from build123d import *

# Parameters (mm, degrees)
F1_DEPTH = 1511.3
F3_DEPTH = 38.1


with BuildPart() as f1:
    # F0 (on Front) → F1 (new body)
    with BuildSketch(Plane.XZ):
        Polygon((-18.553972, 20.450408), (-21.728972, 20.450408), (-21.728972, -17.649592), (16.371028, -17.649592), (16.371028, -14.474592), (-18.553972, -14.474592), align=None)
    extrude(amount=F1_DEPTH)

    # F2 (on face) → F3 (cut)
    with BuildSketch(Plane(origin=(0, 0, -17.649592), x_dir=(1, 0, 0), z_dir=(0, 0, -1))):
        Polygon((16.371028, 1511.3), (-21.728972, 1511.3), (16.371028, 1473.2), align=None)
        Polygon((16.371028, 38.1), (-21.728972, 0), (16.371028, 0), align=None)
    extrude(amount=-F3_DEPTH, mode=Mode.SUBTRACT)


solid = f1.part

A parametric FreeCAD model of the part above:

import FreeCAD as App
import Part
import Sketcher

V = App.Vector
Q = App.Units.Quantity


def add_polygon(sketch, points):
    """Adds a closed chain of lines whose ends are joined by coincident constraints."""
    first, n = sketch.GeometryCount, len(points)
    for a, b in zip(points, points[1:] + points[:1]):
        sketch.addGeometry(Part.LineSegment(App.Vector(*a, 0), App.Vector(*b, 0)), False)
    for i in range(n):
        sketch.addConstraint(Sketcher.Constraint("Coincident", first + i, 2, first + (i + 1) % n, 1))

doc = App.newDocument("Part")
body = doc.addObject("PartDesign::Body", "Body")

sketch1 = body.newObject("Sketcher::SketchObject", "Sketch")
sketch1.AttachmentSupport = (doc.getObject("XZ_Plane"), [""])
sketch1.MapMode = "FlatFace"
add_polygon(sketch1, [(-18.6, 20.5), (-21.7, 20.5), (-21.7, -17.6), (16.4, -17.6), (16.4, -14.5), (-18.6, -14.5)])
sketch1.addConstraint(Sketcher.Constraint("Horizontal", 0))
sketch1.addConstraint(Sketcher.Constraint("Vertical", 1))
sketch1.addConstraint(Sketcher.Constraint("Horizontal", 2))
sketch1.addConstraint(Sketcher.Constraint("Vertical", 3))
sketch1.addConstraint(Sketcher.Constraint("Horizontal", 4))
sketch1.addConstraint(Sketcher.Constraint("Vertical", 5))
sketch1.addConstraint(Sketcher.Constraint("Equal", 2, 1))
sketch1.addConstraint(Sketcher.Constraint("Equal", 0, 3))
sketch1.addConstraint(Sketcher.Constraint("DistanceX", 2, 1, 2, 2, Q("1.5 in")))
sketch1.addConstraint(Sketcher.Constraint("DistanceX", 0, 2, 0, 1, Q("0.125 in")))
sketch1.addConstraint(Sketcher.Constraint("DistanceX", 0, 2, -1, 1, Q("21.728972 mm")))
sketch1.addConstraint(Sketcher.Constraint("DistanceY", 1, 2, -1, 1, Q("17.649592 mm")))
pad1 = body.newObject("PartDesign::Pad", "Pad")
pad1.Profile = sketch1
pad1.Length = Q("59.5 in")

sketch2 = body.newObject("Sketcher::SketchObject", "Sketch001")
sketch2.AttachmentSupport = (doc.getObject("XY_Plane"), [""])
sketch2.MapMode = "FlatFace"
sketch2.AttachmentOffset = App.Placement(V(0, 0, -17.649592), App.Rotation())
add_polygon(sketch2, [(16, -1511), (-22, -1511), (16, -1473)])
add_polygon(sketch2, [(16, -38), (-22, 0), (16, 0)])
sketch2.addConstraint(Sketcher.Constraint("Horizontal", 0))
sketch2.addConstraint(Sketcher.Constraint("Vertical", 2))
sketch2.addConstraint(Sketcher.Constraint("Horizontal", 4))
sketch2.addConstraint(Sketcher.Constraint("Vertical", 5))
sketch2.addConstraint(Sketcher.Constraint("PointOnObject", 3, 2, -1))
sketch2.addConstraint(Sketcher.Constraint("Perpendicular", 1, 3))
sketch2.addConstraint(Sketcher.Constraint("Vertical", 0, 2, 3, 2))
sketch2.addConstraint(Sketcher.Constraint("Vertical", 2, 2, 4, 2))
sketch2.addConstraint(Sketcher.Constraint("Equal", 4, 2))
sketch2.addConstraint(Sketcher.Constraint("DistanceX", 0, 2, 0, 1, Q("1.5 in")))
sketch2.addConstraint(Sketcher.Constraint("DistanceY", 1, 2, -1, 1, Q("58 in")))
sketch2.addConstraint(Sketcher.Constraint("DistanceX", 0, 2, -1, 1, Q("21.728972 mm")))
pocket1 = body.newObject("PartDesign::Pocket", "Pocket")
pocket1.Profile = sketch2
pocket1.Length = Q("1.5 in")
pocket1.Reversed = True

doc.recompute()
